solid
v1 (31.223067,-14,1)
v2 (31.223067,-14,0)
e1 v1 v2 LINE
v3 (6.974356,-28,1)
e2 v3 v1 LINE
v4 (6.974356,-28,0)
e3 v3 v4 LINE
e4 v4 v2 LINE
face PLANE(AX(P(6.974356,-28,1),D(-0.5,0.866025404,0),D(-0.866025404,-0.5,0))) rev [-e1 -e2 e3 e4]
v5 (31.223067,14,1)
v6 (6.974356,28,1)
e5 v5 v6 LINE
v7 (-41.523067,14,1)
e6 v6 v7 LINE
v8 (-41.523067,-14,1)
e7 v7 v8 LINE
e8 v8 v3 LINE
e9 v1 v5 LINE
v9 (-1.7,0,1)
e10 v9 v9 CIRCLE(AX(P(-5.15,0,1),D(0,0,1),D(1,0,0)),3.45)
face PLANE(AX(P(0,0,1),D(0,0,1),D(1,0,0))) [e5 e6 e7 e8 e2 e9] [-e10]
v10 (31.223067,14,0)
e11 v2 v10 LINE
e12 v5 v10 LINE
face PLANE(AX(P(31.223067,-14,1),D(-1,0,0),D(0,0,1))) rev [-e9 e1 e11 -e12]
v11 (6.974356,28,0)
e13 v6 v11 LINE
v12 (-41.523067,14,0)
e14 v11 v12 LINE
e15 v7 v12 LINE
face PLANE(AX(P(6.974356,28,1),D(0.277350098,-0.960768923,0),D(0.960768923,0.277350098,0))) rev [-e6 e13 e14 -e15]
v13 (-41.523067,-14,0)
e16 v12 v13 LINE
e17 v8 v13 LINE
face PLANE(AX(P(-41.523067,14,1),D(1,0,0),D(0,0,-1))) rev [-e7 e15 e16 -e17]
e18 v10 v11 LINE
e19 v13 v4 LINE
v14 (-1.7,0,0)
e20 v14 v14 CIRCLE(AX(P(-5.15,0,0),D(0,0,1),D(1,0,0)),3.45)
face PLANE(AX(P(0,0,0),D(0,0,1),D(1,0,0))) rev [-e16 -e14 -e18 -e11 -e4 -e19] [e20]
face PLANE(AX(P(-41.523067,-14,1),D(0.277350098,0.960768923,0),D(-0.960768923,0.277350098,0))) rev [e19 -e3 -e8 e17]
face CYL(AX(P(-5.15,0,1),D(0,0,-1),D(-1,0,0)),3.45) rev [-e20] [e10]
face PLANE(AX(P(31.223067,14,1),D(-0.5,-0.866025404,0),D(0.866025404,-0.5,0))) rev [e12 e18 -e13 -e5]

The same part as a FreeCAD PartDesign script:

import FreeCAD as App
import Part
import Sketcher

V = App.Vector
Q = App.Units.Quantity


def add_polygon(sketch, points):
    """Adds a closed chain of lines whose ends are joined by coincident constraints."""
    first, n = sketch.GeometryCount, len(points)
    for a, b in zip(points, points[1:] + points[:1]):
        sketch.addGeometry(Part.LineSegment(App.Vector(*a, 0), App.Vector(*b, 0)), False)
    for i in range(n):
        sketch.addConstraint(Sketcher.Constraint("Coincident", first + i, 2, first + (i + 1) % n, 1))

doc = App.newDocument("Part")
body = doc.addObject("PartDesign::Body", "Body")

# Sketch on XY plane
sketch1 = doc.addObject("Sketcher::SketchObject", "Sketch")
body.addObject(sketch1)
sketch1.AttachmentSupport = (doc.XY_Plane, [""])
sketch1.MapMode = "FlatFace"
add_polygon(sketch1, [(-41.5, -14), (7, -28), (31.2, -14), (31.2, 14), (7, 28), (-41.5, 14)])  # lines 0-5
sketch1.addGeometry(Part.Circle(V(-5.2, 0, 0), V(0, 0, 1), 3.5), False)  # 6
sketch1.addConstraint(Sketcher.Constraint("Vertical", 2))
sketch1.addConstraint(Sketcher.Constraint("Vertical", 5))
sketch1.addConstraint(Sketcher.Constraint("Symmetric", 0, 2, 3, 2, -1))
sketch1.addConstraint(Sketcher.Constraint("PointOnObject", 6, 3, -1))
sketch1.addConstraint(Sketcher.Constraint("Horizontal", 2, 2, 4, 2))
sketch1.addConstraint(Sketcher.Constraint("Horizontal", 1, 2, 5, 2))
sketch1.addConstraint(Sketcher.Constraint("Equal", 1, 3))
sketch1.addConstraint(Sketcher.Constraint("Diameter", 6, Q("6.9 mm")))
sketch1.addConstraint(Sketcher.Constraint("DistanceY", 2, 1, 2, 2, Q("28 mm")))
sketch1.addConstraint(Sketcher.Constraint("Angle", 1, Q("30 deg")))
sketch1.addConstraint(Sketcher.Constraint("Distance", 1, Q("28 mm")))
sketch1.addConstraint(Sketcher.Constraint("DistanceX", 6, 3, -1, 1, Q("5.15 mm")))
sketch1.addConstraint(Sketcher.Constraint("Distance", 0, Q("50.477718 mm")))
sketch1.addConstraint(Sketcher.Constraint("DistanceX", -1, 1, 0, 2, Q("6.974356 mm")))
pad1 = doc.addObject("PartDesign::Pad", "Pad")
body.addObject(pad1)
pad1.Profile = sketch1
pad1.Length = 1

doc.recompute()
